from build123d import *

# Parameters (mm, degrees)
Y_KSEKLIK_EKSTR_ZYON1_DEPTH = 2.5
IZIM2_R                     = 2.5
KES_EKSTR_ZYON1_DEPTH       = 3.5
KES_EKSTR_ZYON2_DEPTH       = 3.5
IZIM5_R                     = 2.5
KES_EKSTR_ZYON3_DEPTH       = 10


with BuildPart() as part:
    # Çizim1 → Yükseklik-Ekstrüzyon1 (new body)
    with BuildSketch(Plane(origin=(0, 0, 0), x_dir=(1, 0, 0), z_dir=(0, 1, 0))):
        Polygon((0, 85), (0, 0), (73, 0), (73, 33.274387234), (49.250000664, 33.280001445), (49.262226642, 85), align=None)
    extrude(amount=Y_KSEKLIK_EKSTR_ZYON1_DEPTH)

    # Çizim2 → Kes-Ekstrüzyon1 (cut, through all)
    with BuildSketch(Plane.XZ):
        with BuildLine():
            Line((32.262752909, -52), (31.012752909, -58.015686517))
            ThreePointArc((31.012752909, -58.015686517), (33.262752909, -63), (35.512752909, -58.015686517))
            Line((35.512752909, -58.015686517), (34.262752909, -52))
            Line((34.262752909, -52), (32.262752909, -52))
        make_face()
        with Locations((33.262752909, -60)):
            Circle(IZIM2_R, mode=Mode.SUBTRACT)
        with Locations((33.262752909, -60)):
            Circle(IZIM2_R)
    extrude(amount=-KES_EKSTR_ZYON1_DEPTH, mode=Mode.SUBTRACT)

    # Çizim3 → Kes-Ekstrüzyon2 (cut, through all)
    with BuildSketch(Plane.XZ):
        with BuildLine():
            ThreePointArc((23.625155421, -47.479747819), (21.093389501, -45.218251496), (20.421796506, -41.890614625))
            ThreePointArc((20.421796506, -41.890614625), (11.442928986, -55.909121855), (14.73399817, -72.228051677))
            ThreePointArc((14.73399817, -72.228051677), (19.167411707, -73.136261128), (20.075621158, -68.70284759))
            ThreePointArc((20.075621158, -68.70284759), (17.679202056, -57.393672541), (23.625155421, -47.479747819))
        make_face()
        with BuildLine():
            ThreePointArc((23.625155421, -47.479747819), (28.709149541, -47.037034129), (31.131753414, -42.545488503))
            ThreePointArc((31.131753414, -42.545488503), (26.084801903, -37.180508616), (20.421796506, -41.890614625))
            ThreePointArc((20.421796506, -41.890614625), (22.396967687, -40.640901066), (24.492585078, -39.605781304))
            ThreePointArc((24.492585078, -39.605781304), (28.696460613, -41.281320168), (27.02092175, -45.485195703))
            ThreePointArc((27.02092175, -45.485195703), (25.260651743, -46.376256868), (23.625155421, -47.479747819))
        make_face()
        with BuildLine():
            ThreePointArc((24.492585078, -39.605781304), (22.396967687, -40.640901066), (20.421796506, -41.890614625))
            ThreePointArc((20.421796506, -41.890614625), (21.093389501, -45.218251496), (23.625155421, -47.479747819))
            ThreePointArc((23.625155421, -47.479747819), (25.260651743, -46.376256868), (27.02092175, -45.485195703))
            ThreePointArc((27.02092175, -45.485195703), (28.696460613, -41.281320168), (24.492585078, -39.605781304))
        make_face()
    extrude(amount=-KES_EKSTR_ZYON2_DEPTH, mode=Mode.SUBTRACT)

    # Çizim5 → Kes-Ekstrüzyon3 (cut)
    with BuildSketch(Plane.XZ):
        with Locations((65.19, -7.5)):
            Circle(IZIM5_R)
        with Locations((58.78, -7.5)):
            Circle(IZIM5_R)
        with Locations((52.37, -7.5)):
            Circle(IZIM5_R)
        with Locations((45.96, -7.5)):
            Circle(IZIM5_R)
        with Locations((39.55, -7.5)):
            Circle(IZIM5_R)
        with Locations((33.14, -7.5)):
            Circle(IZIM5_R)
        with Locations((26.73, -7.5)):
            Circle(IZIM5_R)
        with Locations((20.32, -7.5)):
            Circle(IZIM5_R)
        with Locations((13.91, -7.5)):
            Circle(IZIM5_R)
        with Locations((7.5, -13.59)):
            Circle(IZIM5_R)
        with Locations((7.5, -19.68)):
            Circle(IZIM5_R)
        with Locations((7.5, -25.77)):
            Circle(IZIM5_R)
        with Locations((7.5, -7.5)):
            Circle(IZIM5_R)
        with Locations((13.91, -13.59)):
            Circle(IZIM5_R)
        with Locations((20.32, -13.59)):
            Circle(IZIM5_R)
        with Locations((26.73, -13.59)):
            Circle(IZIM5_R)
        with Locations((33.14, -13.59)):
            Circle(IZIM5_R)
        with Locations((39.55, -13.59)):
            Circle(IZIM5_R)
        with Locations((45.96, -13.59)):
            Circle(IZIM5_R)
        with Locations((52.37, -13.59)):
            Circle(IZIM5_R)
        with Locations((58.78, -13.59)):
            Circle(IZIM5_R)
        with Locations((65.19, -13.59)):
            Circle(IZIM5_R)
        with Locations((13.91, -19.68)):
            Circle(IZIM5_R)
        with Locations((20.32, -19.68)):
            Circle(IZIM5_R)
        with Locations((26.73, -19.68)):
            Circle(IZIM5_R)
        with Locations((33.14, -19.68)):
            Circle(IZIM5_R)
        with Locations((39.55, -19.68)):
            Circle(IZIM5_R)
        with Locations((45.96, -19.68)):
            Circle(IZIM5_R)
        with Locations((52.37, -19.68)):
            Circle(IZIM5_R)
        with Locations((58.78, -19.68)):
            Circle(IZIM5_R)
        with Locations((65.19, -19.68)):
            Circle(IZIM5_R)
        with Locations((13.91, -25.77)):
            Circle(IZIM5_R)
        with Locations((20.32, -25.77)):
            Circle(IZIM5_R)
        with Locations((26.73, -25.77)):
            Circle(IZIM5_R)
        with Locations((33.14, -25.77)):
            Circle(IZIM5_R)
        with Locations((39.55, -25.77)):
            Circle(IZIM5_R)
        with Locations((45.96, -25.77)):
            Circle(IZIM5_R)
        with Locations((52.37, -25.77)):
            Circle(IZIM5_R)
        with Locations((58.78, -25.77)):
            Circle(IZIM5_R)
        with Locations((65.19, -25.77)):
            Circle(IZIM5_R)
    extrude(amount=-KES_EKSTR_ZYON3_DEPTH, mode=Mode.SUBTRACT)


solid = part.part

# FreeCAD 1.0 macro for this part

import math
import FreeCAD as App
import Part
import Sketcher
from FreeCAD import Vector
Q = App.Units.Quantity


def add_polygon(sketch, points):
    """Adds a closed chain of lines whose ends are joined by coincident constraints."""
    first, n = sketch.GeometryCount, len(points)
    for a, b in zip(points, points[1:] + points[:1]):
        sketch.addGeometry(Part.LineSegment(App.Vector(*a, 0), App.Vector(*b, 0)), False)
    for i in range(n):
        sketch.addConstraint(Sketcher.Constraint("Coincident", first + i, 2, first + (i + 1) % n, 1))

doc = App.newDocument("Part")
body = doc.addObject("PartDesign::Body", "Body")

sketch1 = body.newObject("Sketcher::SketchObject", "Sketch")
sketch1.AttachmentSupport = (doc.getObject("XZ_Plane"), [""])
sketch1.MapMode = "FlatFace"
add_polygon(sketch1, [(0, -85), (0, 0), (73, 0), (73, -33), (49, -33), (49, -85)])
sketch1.addConstraint([
    Sketcher.Constraint("Vertical", 0),
    Sketcher.Constraint("Horizontal", 1),
    Sketcher.Constraint("Vertical", 2),
    Sketcher.Constraint("Horizontal", 5),
    Sketcher.Constraint("Coincident", 0, 2, -1, 1),
    Sketcher.Constraint("Perpendicular", 3, 4),
    Sketcher.Constraint("DistanceX", 1, 1, 1, 2, Q("73 mm")),
    Sketcher.Constraint("DistanceY", 0, 1, 0, 2, Q("85 mm")),
    Sketcher.Constraint("Distance", 3, Q("23.75 mm")),
    Sketcher.Constraint("Distance", 4, Q("51.72 mm")),
    Sketcher.Constraint("DistanceX", 5, 2, 5, 1, Q("49.262227 mm")),
])
pad1 = body.newObject("PartDesign::Pad", "Pad")
pad1.Profile = sketch1
pad1.Length = 2.5
pad1.Reversed = True

sketch2 = body.newObject("Sketcher::SketchObject", "Sketch001")
sketch2.AttachmentSupport = (doc.getObject("XZ_Plane"), [""])
sketch2.MapMode = "FlatFace"
sketch2.addGeometry([
    Part.LineSegment(Vector(32.3, -52, 0), Vector(31, -58, 0)),
    Part.ArcOfCircle(Part.Circle(Vector(33.3, -60, 0), Vector(0, 0, 1), 3), math.radians(139), math.radians(401)),
    Part.LineSegment(Vector(35.5, -58, 0), Vector(34.3, -52, 0)),
    Part.LineSegment(Vector(34.3, -52, 0), Vector(32.3, -52, 0)),
], False)
sketch2.addConstraint([
    Sketcher.Constraint("Coincident", 0, 2, 1, 1),
    Sketcher.Constraint("Coincident", 1, 2, 2, 1),
    Sketcher.Constraint("Coincident", 2, 2, 3, 1),
    Sketcher.Constraint("Coincident", 3, 2, 0, 1),
    Sketcher.Constraint("Horizontal", 3),
    Sketcher.Constraint("Horizontal", 0, 2, 1, 2),
    Sketcher.Constraint("Equal", 0, 2),
    Sketcher.Constraint("Radius", 1, Q("3 mm")),
    Sketcher.Constraint("DistanceX", 3, 2, 3, 1, Q("2 mm")),
    Sketcher.Constraint("DistanceY", 1, 3, -1, 1, Q("60 mm")),
    Sketcher.Constraint("DistanceY", 2, 2, -1, 1, Q("52 mm")),
    Sketcher.Constraint("DistanceX", 0, 2, 1, 2, Q("4.5 mm")),
    Sketcher.Constraint("DistanceX", -1, 1, 1, 3, Q("33.262753 mm")),
])
pocket1 = body.newObject("PartDesign::Pocket", "Pocket")
pocket1.Profile = sketch2
pocket1.Type = "ThroughAll"

sketch3 = body.newObject("Sketcher::SketchObject", "Sketch002")
sketch3.AttachmentSupport = (doc.getObject("XZ_Plane"), [""])
sketch3.MapMode = "FlatFace"
sketch3.addGeometry([
    Part.ArcOfCircle(Part.Circle(Vector(17.4, -70.5, 0), Vector(0, 0, 1), 3.2), math.radians(-147), math.radians(33)),
    Part.ArcOfCircle(Part.Circle(Vector(33.3, -60, 0), Vector(0, 0, 1), 15.8), math.radians(128), math.radians(213)),
    Part.ArcOfCircle(Part.Circle(Vector(25.8, -42.5, 0), Vector(0, 0, 1), 5.4), math.radians(-113), math.radians(0)),
    Part.ArcOfCircle(Part.Circle(Vector(25.8, -42.5, 0), Vector(0, 0, 1), 5.4), math.radians(0), math.radians(173)),
    Part.ArcOfCircle(Part.Circle(Vector(33.3, -60, 0), Vector(0, 0, 1), 22.2), math.radians(125), math.radians(213)),
], False)
sketch3.addConstraint([
    Sketcher.Constraint("Tangent", 0, 2, 1, 2),
    Sketcher.Constraint("Coincident", 1, 1, 2, 1),
    Sketcher.Constraint("Tangent", 2, 2, 3, 1),
    Sketcher.Constraint("Coincident", 3, 2, 4, 1),
    Sketcher.Constraint("Tangent", 4, 2, 0, 1),
    Sketcher.Constraint("Coincident", 4, 3, 1, 3),
    Sketcher.Constraint("Equal", 2, 3),
    Sketcher.Constraint("Horizontal", 3, 3, 2, 2),
    Sketcher.Constraint("Radius", 0, Q("3.2 mm")),
    Sketcher.Constraint("Radius", 1, Q("15.8 mm")),
    Sketcher.Constraint("DistanceY", 1, 3, -1, 1, Q("60 mm")),
    Sketcher.Constraint("Radius", 2, Q("5.375 mm")),
    Sketcher.Constraint("DistanceX", -1, 1, 4, 2, Q("14.733998 mm")),
    Sketcher.Constraint("DistanceX", 2, 3, 1, 3, Q("7.505999 mm")),
    Sketcher.Constraint("DistanceY", 0, 2, 1, 1, Q("21.2231 mm")),
    Sketcher.Constraint("DistanceX", -1, 1, 0, 3, Q("17.40481 mm")),
])
pocket2 = body.newObject("PartDesign::Pocket", "Pocket001")
pocket2.Profile = sketch3
pocket2.Type = "ThroughAll"

sketch4 = body.newObject("Sketcher::SketchObject", "Sketch003")
sketch4.AttachmentSupport = (doc.getObject("XZ_Plane"), [""])
sketch4.MapMode = "FlatFace"
sketch4.addGeometry([
    Part.Circle(Vector(65.2, -7.5, 0), Vector(0, 0, 1), 2.5),
    Part.Circle(Vector(58.8, -7.5, 0), Vector(0, 0, 1), 2.5),
    Part.Circle(Vector(52.4, -7.5, 0), Vector(0, 0, 1), 2.5),
    Part.Circle(Vector(46, -7.5, 0), Vector(0, 0, 1), 2.5),
    Part.Circle(Vector(39.5, -7.5, 0), Vector(0, 0, 1), 2.5),
    Part.Circle(Vector(33.1, -7.5, 0), Vector(0, 0, 1), 2.5),
    Part.Circle(Vector(26.7, -7.5, 0), Vector(0, 0, 1), 2.5),
    Part.Circle(Vector(20.3, -7.5, 0), Vector(0, 0, 1), 2.5),
    Part.Circle(Vector(13.9, -7.5, 0), Vector(0, 0, 1), 2.5),
    Part.Circle(Vector(7.5, -13.6, 0), Vector(0, 0, 1), 2.5),
    Part.Circle(Vector(7.5, -19.7, 0), Vector(0, 0, 1), 2.5),
    Part.Circle(Vector(7.5, -25.8, 0), Vector(0, 0, 1), 2.5),
    Part.Circle(Vector(7.5, -7.5, 0), Vector(0, 0, 1), 2.5),
    Part.Circle(Vector(13.9, -13.6, 0), Vector(0, 0, 1), 2.5),
    Part.Circle(Vector(20.3, -13.6, 0), Vector(0, 0, 1), 2.5),
    Part.Circle(Vector(26.7, -13.6, 0), Vector(0, 0, 1), 2.5),
    Part.Circle(Vector(33.1, -13.6, 0), Vector(0, 0, 1), 2.5),
    Part.Circle(Vector(39.5, -13.6, 0), Vector(0, 0, 1), 2.5),
    Part.Circle(Vector(46, -13.6, 0), Vector(0, 0, 1), 2.5),
    Part.Circle(Vector(52.4, -13.6, 0), Vector(0, 0, 1), 2.5),
    Part.Circle(Vector(58.8, -13.6, 0), Vector(0, 0, 1), 2.5),
    Part.Circle(Vector(65.2, -13.6, 0), Vector(0, 0, 1), 2.5),
    Part.Circle(Vector(13.9, -19.7, 0), Vector(0, 0, 1), 2.5),
    Part.Circle(Vector(20.3, -19.7, 0), Vector(0, 0, 1), 2.5),
    Part.Circle(Vector(26.7, -19.7, 0), Vector(0, 0, 1), 2.5),
    Part.Circle(Vector(33.1, -19.7, 0), Vector(0, 0, 1), 2.5),
    Part.Circle(Vector(39.5, -19.7, 0), Vector(0, 0, 1), 2.5),
    Part.Circle(Vector(46, -19.7, 0), Vector(0, 0, 1), 2.5),
    Part.Circle(Vector(52.4, -19.7, 0), Vector(0, 0, 1), 2.5),
    Part.Circle(Vector(58.8, -19.7, 0), Vector(0, 0, 1), 2.5),
    Part.Circle(Vector(65.2, -19.7, 0), Vector(0, 0, 1), 2.5),
    Part.Circle(Vector(13.9, -25.8, 0), Vector(0, 0, 1), 2.5),
    Part.Circle(Vector(20.3, -25.8, 0), Vector(0, 0, 1), 2.5),
    Part.Circle(Vector(26.7, -25.8, 0), Vector(0, 0, 1), 2.5),
    Part.Circle(Vector(33.1, -25.8, 0), Vector(0, 0, 1), 2.5),
    Part.Circle(Vector(39.5, -25.8, 0), Vector(0, 0, 1), 2.5),
    Part.Circle(Vector(46, -25.8, 0), Vector(0, 0, 1), 2.5),
    Part.Circle(Vector(52.4, -25.8, 0), Vector(0, 0, 1), 2.5),
    Part.Circle(Vector(58.8, -25.8, 0), Vector(0, 0, 1), 2.5),
    Part.Circle(Vector(65.2, -25.8, 0), Vector(0, 0, 1), 2.5),
], False)
sketch4.addConstraint([
    Sketcher.Constraint("Equal", 0, 1),
    Sketcher.Constraint("Equal", 1, 2),
    Sketcher.Constraint("Equal", 2, 3),
    Sketcher.Constraint("Equal", 3, 4),
    Sketcher.Constraint("Equal", 4, 5),
    Sketcher.Constraint("Equal", 5, 6),
    Sketcher.Constraint("Equal", 6, 7),
    Sketcher.Constraint("Equal", 7, 8),
    Sketcher.Constraint("Equal", 8, 9),
    Sketcher.Constraint("Equal", 9, 10),
    Sketcher.Constraint("Equal", 10, 11),
    Sketcher.Constraint("Equal", 11, 12),
    Sketcher.Constraint("Equal", 12, 13),
    Sketcher.Constraint("Equal", 13, 14),
    Sketcher.Constraint("Equal", 14, 15),
    Sketcher.Constraint("Equal", 15, 16),
    Sketcher.Constraint("Equal", 16, 17),
    Sketcher.Constraint("Equal", 17, 18),
    Sketcher.Constraint("Equal", 18, 19),
    Sketcher.Constraint("Equal", 19, 20),
    Sketcher.Constraint("Equal", 20, 21),
    Sketcher.Constraint("Equal", 21, 22),
    Sketcher.Constraint("Equal", 22, 23),
    Sketcher.Constraint("Equal", 23, 24),
    Sketcher.Constraint("Equal", 24, 25),
    Sketcher.Constraint("Equal", 25, 26),
    Sketcher.Constraint("Equal", 26, 27),
    Sketcher.Constraint("Equal", 27, 28),
    Sketcher.Constraint("Equal", 28, 29),
    Sketcher.Constraint("Equal", 29, 30),
    Sketcher.Constraint("Equal", 30, 31),
    Sketcher.Constraint("Equal", 31, 32),
    Sketcher.Constraint("Equal", 32, 33),
    Sketcher.Constraint("Equal", 33, 34),
    Sketcher.Constraint("Equal", 34, 35),
    Sketcher.Constraint("Equal", 35, 36),
    Sketcher.Constraint("Equal", 36, 37),
    Sketcher.Constraint("Equal", 37, 38),
    Sketcher.Constraint("Equal", 38, 39),
    Sketcher.Constraint("Horizontal", 0, 3, 1, 3),
    Sketcher.Constraint("Horizontal", 1, 3, 2, 3),
    Sketcher.Constraint("Horizontal", 2, 3, 3, 3),
    Sketcher.Constraint("Horizontal", 3, 3, 4, 3),
    Sketcher.Constraint("Horizontal", 4, 3, 5, 3),
    Sketcher.Constraint("Horizontal", 5, 3, 6, 3),
    Sketcher.Constraint("Horizontal", 6, 3, 7, 3),
    Sketcher.Constraint("Horizontal", 7, 3, 8, 3),
    Sketcher.Constraint("Horizontal", 8, 3, 12, 3),
    Sketcher.Constraint("Horizontal", 9, 3, 13, 3),
    Sketcher.Constraint("Horizontal", 13, 3, 14, 3),
    Sketcher.Constraint("Horizontal", 14, 3, 15, 3),
    Sketcher.Constraint("Horizontal", 15, 3, 16, 3),
    Sketcher.Constraint("Horizontal", 16, 3, 17, 3),
    Sketcher.Constraint("Horizontal", 17, 3, 18, 3),
    Sketcher.Constraint("Horizontal", 18, 3, 19, 3),
    Sketcher.Constraint("Horizontal", 19, 3, 20, 3),
    Sketcher.Constraint("Horizontal", 20, 3, 21, 3),
    Sketcher.Constraint("Horizontal", 10, 3, 22, 3),
    Sketcher.Constraint("Horizontal", 22, 3, 23, 3),
    Sketcher.Constraint("Horizontal", 23, 3, 24, 3),
    Sketcher.Constraint("Horizontal", 24, 3, 25, 3),
    Sketcher.Constraint("Horizontal", 25, 3, 26, 3),
    Sketcher.Constraint("Horizontal", 26, 3, 27, 3),
    Sketcher.Constraint("Horizontal", 27, 3, 28, 3),
    Sketcher.Constraint("Horizontal", 28, 3, 29, 3),
    Sketcher.Constraint("Horizontal", 29, 3, 30, 3),
    Sketcher.Constraint("Horizontal", 11, 3, 31, 3),
    Sketcher.Constraint("Horizontal", 31, 3, 32, 3),
    Sketcher.Constraint("Horizontal", 32, 3, 33, 3),
    Sketcher.Constraint("Horizontal", 33, 3, 34, 3),
    Sketcher.Constraint("Horizontal", 34, 3, 35, 3),
    Sketcher.Constraint("Horizontal", 35, 3, 36, 3),
    Sketcher.Constraint("Horizontal", 36, 3, 37, 3),
    Sketcher.Constraint("Horizontal", 37, 3, 38, 3),
    Sketcher.Constraint("Horizontal", 38, 3, 39, 3),
    Sketcher.Constraint("Vertical", 9, 3, 10, 3),
    Sketcher.Constraint("Vertical", 10, 3, 11, 3),
    Sketcher.Constraint("Vertical", 11, 3, 12, 3),
    Sketcher.Constraint("Vertical", 8, 3, 13, 3),
    Sketcher.Constraint("Vertical", 7, 3, 14, 3),
    Sketcher.Constraint("Vertical", 6, 3, 15, 3),
    Sketcher.Constraint("Vertical", 5, 3, 16, 3),
    Sketcher.Constraint("Vertical", 4, 3, 17, 3),
    Sketcher.Constraint("Vertical", 3, 3, 18, 3),
    Sketcher.Constraint("Vertical", 2, 3, 19, 3),
    Sketcher.Constraint("Vertical", 1, 3, 20, 3),
    Sketcher.Constraint("Vertical", 0, 3, 21, 3),
    Sketcher.Constraint("Vertical", 13, 3, 22, 3),
    Sketcher.Constraint("Vertical", 14, 3, 23, 3),
    Sketcher.Constraint("Vertical", 15, 3, 24, 3),
    Sketcher.Constraint("Vertical", 16, 3, 25, 3),
    Sketcher.Constraint("Vertical", 17, 3, 26, 3),
    Sketcher.Constraint("Vertical", 18, 3, 27, 3),
    Sketcher.Constraint("Vertical", 19, 3, 28, 3),
    Sketcher.Constraint("Vertical", 20, 3, 29, 3),
    Sketcher.Constraint("Vertical", 21, 3, 30, 3),
    Sketcher.Constraint("Vertical", 22, 3, 31, 3),
    Sketcher.Constraint("Vertical", 23, 3, 32, 3),
    Sketcher.Constraint("Vertical", 24, 3, 33, 3),
    Sketcher.Constraint("Vertical", 25, 3, 34, 3),
    Sketcher.Constraint("Vertical", 26, 3, 35, 3),
    Sketcher.Constraint("Vertical", 27, 3, 36, 3),
    Sketcher.Constraint("Vertical", 28, 3, 37, 3),
    Sketcher.Constraint("Vertical", 29, 3, 38, 3),
    Sketcher.Constraint("Vertical", 30, 3, 39, 3),
    Sketcher.Constraint("Diameter", 0, Q("5 mm")),
    Sketcher.Constraint("DistanceY", 0, 3, -1, 1, Q("7.5 mm")),
    Sketcher.Constraint("DistanceX", -1, 1, 9, 3, Q("7.5 mm")),
    Sketcher.Constraint("DistanceX", -1, 1, 0, 3, Q("65.19 mm")),
    Sketcher.Constraint("DistanceX", -1, 1, 1, 3, Q("58.78 mm")),
    Sketcher.Constraint("DistanceX", -1, 1, 2, 3, Q("52.37 mm")),
    Sketcher.Constraint("DistanceX", -1, 1, 3, 3, Q("45.96 mm")),
    Sketcher.Constraint("DistanceX", -1, 1, 4, 3, Q("39.55 mm")),
    Sketcher.Constraint("DistanceX", -1, 1, 5, 3, Q("33.14 mm")),
    Sketcher.Constraint("DistanceX", -1, 1, 6, 3, Q("26.73 mm")),
    Sketcher.Constraint("DistanceX", -1, 1, 7, 3, Q("20.32 mm")),
    Sketcher.Constraint("DistanceX", -1, 1, 8, 3, Q("13.91 mm")),
    Sketcher.Constraint("DistanceY", 9, 3, -1, 1, Q("13.59 mm")),
    Sketcher.Constraint("DistanceY", 10, 3, -1, 1, Q("19.68 mm")),
    Sketcher.Constraint("DistanceY", 11, 3, -1, 1, Q("25.77 mm")),
])
pocket3 = body.newObject("PartDesign::Pocket", "Pocket002")
pocket3.Profile = sketch4
pocket3.Length = 10

doc.recompute()
